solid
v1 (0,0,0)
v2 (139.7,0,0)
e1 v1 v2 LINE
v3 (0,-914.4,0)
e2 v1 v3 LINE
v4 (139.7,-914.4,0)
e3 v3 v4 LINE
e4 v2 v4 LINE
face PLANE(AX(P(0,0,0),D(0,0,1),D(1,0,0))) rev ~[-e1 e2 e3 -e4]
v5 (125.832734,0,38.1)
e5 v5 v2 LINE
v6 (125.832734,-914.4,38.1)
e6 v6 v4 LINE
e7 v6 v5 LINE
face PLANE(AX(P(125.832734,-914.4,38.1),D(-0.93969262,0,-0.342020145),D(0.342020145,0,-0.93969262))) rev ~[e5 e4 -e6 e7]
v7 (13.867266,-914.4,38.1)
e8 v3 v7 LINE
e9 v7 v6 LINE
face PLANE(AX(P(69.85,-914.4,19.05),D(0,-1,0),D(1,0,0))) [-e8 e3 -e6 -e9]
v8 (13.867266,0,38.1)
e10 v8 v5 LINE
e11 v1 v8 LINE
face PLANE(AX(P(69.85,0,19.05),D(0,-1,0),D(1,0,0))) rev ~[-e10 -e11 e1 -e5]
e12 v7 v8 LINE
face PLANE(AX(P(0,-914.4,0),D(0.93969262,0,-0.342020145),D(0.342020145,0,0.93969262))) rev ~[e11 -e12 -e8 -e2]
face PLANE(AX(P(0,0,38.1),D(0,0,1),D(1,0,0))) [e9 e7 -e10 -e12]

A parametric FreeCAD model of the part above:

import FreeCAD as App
import Part
import Sketcher
Q = App.Units.Quantity

doc = App.newDocument("Part")
body = doc.addObject("PartDesign::Body", "Body")

# Sketch on XZ plane
sketch1 = body.newObject("Sketcher::SketchObject", "Sketch")
sketch1.AttachmentSupport = (doc.getObject("XZ_Plane"), [""])
sketch1.MapMode = "FlatFace"
sketch1.addGeometry([
    Part.LineSegment(App.Vector(0, 38, 0), App.Vector(0, 0, 0)),
    Part.LineSegment(App.Vector(0, 0, 0), App.Vector(140, 0, 0)),
    Part.LineSegment(App.Vector(140, 0, 0), App.Vector(140, 38, 0)),
    Part.LineSegment(App.Vector(140, 38, 0), App.Vector(0, 38, 0)),
], False)
sketch1.addConstraint([
    Sketcher.Constraint("Coincident", 0, 2, 1, 1),
    Sketcher.Constraint("Coincident", 1, 2, 2, 1),
    Sketcher.Constraint("Coincident", 2, 2, 3, 1),
    Sketcher.Constraint("Coincident", 3, 2, 0, 1),
    Sketcher.Constraint("Vertical", 0),
    Sketcher.Constraint("Horizontal", 1),
    Sketcher.Constraint("Vertical", 2),
    Sketcher.Constraint("Horizontal", 3),
    Sketcher.Constraint("Coincident", 0, 2, -1, 1),
    Sketcher.Constraint("DistanceX", 1, 1, 1, 2, Q("5.5 in")),
    Sketcher.Constraint("DistanceY", 0, 2, 0, 1, Q("1.5 in")),
])
pad1 = body.newObject("PartDesign::Pad", "Pad")
pad1.Profile = sketch1
pad1.Length = Q("36 in")

# Sketch on XZ plane
sketch2 = body.newObject("Sketcher::SketchObject", "Sketch001")
sketch2.AttachmentSupport = (doc.getObject("XZ_Plane"), [""])
sketch2.MapMode = "FlatFace"
sketch2.AttachmentOffset = App.Placement(App.Vector(0, 0, 36 * 25.4), App.Rotation())
sketch2.addGeometry([
    Part.LineSegment(App.Vector(0, 38, 0), App.Vector(0, 0, 0)),  # 0
    Part.LineSegment(App.Vector(0, 0, 0), App.Vector(14, 38, 0)),  # 1
    Part.LineSegment(App.Vector(14, 38, 0), App.Vector(0, 38, 0)),  # 2
    Part.LineSegment(App.Vector(126, 38, 0), App.Vector(140, 0, 0)),  # 3
    Part.LineSegment(App.Vector(140, 0, 0), App.Vector(140, 38, 0)),  # 4
    Part.LineSegment(App.Vector(140, 38, 0), App.Vector(126, 38, 0)),  # 5
], False)
sketch2.addConstraint([
    Sketcher.Constraint("Coincident", 0, 2, 1, 1),
    Sketcher.Constraint("Coincident", 1, 2, 2, 1),
    Sketcher.Constraint("Coincident", 2, 2, 0, 1),
    Sketcher.Constraint("Coincident", 3, 2, 4, 1),
    Sketcher.Constraint("Coincident", 4, 2, 5, 1),
    Sketcher.Constraint("Coincident", 5, 2, 3, 1),
    Sketcher.Constraint("Vertical", 0),
    Sketcher.Constraint("Horizontal", 2),
    Sketcher.Constraint("Vertical", 4),
    Sketcher.Constraint("Horizontal", 5),
    Sketcher.Constraint("Coincident", 0, 2, -1, 1),
    Sketcher.Constraint("PointOnObject", 3, 2, -1),
    Sketcher.Constraint("Horizontal", 2, 2, 4, 2),
    Sketcher.Constraint("Equal", 2, 5),
    Sketcher.Constraint("DistanceY", 0, 2, 0, 1, Q("1.5 in")),
    Sketcher.Constraint("Angle", 1, Q("70 deg")),
    Sketcher.Constraint("DistanceX", -1, 1, 3, 2, Q("5.5 in")),
])
pocket1 = body.newObject("PartDesign::Pocket", "Pocket")
pocket1.Profile = sketch2
pocket1.Length = Q("36 in")

doc.recompute()
